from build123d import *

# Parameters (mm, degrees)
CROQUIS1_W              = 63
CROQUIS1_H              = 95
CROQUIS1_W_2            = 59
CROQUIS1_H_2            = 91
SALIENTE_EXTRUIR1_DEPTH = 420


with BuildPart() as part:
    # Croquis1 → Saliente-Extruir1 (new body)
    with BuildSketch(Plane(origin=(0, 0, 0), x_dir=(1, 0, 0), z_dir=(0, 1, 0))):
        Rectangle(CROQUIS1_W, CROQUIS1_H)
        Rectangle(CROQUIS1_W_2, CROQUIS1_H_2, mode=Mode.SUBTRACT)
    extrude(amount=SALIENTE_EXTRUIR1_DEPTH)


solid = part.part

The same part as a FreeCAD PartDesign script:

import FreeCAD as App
import Part
import Sketcher

V = App.Vector
Q = App.Units.Quantity


def add_polygon(sketch, points):
    """Adds a closed chain of lines whose ends are joined by coincident constraints."""
    first, n = sketch.GeometryCount, len(points)
    for a, b in zip(points, points[1:] + points[:1]):
        sketch.addGeometry(Part.LineSegment(App.Vector(*a, 0), App.Vector(*b, 0)), False)
    for i in range(n):
        sketch.addConstraint(Sketcher.Constraint("Coincident", first + i, 2, first + (i + 1) % n, 1))

doc = App.newDocument("Part")
params = doc.addObject("Spreadsheet::Sheet", "Params")
for row, (alias, value) in enumerate([
    ("sketch1_width", "63 mm"),
    ("sketch1_width2", "59 mm"),
    ("sketch1_height", "95 mm"),
    ("sketch1_height2", "91 mm"),
    ("pad1_length", "420 mm"),
], start=1):
    params.set(f"A{row}", alias)
    params.set(f"B{row}", "=" + value)
    params.setAlias(f"B{row}", alias)

body = doc.addObject("PartDesign::Body", "Body")

# Sketch on XZ plane
sketch1 = body.newObject("Sketcher::SketchObject", "Sketch")
sketch1.AttachmentSupport = (doc.getObject("XZ_Plane"), [""])
sketch1.MapMode = "FlatFace"
add_polygon(sketch1, [(-31.5, -47.5), (-31.5, 47.5), (31.5, 47.5), (31.5, -47.5)])  # lines 0-3
add_polygon(sketch1, [(29.5, 45.5), (-29.5, 45.5), (-29.5, -45.5), (29.5, -45.5)])  # lines 4-7
sketch1.addConstraint([
    Sketcher.Constraint("Vertical", 0),
    Sketcher.Constraint("Horizontal", 1),
    Sketcher.Constraint("Vertical", 2),
    Sketcher.Constraint("Horizontal", 3),
    Sketcher.Constraint("Horizontal", 4),
    Sketcher.Constraint("Vertical", 5),
    Sketcher.Constraint("Horizontal", 6),
    Sketcher.Constraint("Vertical", 7),
    Sketcher.Constraint("Symmetric", 0, 2, 2, 2, -1, 1),
    Sketcher.Constraint("Symmetric", 4, 2, 6, 2, -1, 1),
    Sketcher.Constraint("DistanceX", 1, 1, 1, 2, Q("63 mm")),
    Sketcher.Constraint("DistanceX", 4, 2, 4, 1, Q("59 mm")),
    Sketcher.Constraint("DistanceY", 0, 1, 0, 2, Q("95 mm")),
    Sketcher.Constraint("DistanceY", 5, 2, 5, 1, Q("91 mm")),
])
sketch1.setExpression("Constraints[18]", "Params.sketch1_width")
sketch1.setExpression("Constraints[19]", "Params.sketch1_width2")
sketch1.setExpression("Constraints[20]", "Params.sketch1_height")
sketch1.setExpression("Constraints[21]", "Params.sketch1_height2")
pad1 = body.newObject("PartDesign::Pad", "Pad")
pad1.Profile = sketch1
pad1.setExpression("Length", "Params.pad1_length")
pad1.Reversed = True

doc.recompute()
